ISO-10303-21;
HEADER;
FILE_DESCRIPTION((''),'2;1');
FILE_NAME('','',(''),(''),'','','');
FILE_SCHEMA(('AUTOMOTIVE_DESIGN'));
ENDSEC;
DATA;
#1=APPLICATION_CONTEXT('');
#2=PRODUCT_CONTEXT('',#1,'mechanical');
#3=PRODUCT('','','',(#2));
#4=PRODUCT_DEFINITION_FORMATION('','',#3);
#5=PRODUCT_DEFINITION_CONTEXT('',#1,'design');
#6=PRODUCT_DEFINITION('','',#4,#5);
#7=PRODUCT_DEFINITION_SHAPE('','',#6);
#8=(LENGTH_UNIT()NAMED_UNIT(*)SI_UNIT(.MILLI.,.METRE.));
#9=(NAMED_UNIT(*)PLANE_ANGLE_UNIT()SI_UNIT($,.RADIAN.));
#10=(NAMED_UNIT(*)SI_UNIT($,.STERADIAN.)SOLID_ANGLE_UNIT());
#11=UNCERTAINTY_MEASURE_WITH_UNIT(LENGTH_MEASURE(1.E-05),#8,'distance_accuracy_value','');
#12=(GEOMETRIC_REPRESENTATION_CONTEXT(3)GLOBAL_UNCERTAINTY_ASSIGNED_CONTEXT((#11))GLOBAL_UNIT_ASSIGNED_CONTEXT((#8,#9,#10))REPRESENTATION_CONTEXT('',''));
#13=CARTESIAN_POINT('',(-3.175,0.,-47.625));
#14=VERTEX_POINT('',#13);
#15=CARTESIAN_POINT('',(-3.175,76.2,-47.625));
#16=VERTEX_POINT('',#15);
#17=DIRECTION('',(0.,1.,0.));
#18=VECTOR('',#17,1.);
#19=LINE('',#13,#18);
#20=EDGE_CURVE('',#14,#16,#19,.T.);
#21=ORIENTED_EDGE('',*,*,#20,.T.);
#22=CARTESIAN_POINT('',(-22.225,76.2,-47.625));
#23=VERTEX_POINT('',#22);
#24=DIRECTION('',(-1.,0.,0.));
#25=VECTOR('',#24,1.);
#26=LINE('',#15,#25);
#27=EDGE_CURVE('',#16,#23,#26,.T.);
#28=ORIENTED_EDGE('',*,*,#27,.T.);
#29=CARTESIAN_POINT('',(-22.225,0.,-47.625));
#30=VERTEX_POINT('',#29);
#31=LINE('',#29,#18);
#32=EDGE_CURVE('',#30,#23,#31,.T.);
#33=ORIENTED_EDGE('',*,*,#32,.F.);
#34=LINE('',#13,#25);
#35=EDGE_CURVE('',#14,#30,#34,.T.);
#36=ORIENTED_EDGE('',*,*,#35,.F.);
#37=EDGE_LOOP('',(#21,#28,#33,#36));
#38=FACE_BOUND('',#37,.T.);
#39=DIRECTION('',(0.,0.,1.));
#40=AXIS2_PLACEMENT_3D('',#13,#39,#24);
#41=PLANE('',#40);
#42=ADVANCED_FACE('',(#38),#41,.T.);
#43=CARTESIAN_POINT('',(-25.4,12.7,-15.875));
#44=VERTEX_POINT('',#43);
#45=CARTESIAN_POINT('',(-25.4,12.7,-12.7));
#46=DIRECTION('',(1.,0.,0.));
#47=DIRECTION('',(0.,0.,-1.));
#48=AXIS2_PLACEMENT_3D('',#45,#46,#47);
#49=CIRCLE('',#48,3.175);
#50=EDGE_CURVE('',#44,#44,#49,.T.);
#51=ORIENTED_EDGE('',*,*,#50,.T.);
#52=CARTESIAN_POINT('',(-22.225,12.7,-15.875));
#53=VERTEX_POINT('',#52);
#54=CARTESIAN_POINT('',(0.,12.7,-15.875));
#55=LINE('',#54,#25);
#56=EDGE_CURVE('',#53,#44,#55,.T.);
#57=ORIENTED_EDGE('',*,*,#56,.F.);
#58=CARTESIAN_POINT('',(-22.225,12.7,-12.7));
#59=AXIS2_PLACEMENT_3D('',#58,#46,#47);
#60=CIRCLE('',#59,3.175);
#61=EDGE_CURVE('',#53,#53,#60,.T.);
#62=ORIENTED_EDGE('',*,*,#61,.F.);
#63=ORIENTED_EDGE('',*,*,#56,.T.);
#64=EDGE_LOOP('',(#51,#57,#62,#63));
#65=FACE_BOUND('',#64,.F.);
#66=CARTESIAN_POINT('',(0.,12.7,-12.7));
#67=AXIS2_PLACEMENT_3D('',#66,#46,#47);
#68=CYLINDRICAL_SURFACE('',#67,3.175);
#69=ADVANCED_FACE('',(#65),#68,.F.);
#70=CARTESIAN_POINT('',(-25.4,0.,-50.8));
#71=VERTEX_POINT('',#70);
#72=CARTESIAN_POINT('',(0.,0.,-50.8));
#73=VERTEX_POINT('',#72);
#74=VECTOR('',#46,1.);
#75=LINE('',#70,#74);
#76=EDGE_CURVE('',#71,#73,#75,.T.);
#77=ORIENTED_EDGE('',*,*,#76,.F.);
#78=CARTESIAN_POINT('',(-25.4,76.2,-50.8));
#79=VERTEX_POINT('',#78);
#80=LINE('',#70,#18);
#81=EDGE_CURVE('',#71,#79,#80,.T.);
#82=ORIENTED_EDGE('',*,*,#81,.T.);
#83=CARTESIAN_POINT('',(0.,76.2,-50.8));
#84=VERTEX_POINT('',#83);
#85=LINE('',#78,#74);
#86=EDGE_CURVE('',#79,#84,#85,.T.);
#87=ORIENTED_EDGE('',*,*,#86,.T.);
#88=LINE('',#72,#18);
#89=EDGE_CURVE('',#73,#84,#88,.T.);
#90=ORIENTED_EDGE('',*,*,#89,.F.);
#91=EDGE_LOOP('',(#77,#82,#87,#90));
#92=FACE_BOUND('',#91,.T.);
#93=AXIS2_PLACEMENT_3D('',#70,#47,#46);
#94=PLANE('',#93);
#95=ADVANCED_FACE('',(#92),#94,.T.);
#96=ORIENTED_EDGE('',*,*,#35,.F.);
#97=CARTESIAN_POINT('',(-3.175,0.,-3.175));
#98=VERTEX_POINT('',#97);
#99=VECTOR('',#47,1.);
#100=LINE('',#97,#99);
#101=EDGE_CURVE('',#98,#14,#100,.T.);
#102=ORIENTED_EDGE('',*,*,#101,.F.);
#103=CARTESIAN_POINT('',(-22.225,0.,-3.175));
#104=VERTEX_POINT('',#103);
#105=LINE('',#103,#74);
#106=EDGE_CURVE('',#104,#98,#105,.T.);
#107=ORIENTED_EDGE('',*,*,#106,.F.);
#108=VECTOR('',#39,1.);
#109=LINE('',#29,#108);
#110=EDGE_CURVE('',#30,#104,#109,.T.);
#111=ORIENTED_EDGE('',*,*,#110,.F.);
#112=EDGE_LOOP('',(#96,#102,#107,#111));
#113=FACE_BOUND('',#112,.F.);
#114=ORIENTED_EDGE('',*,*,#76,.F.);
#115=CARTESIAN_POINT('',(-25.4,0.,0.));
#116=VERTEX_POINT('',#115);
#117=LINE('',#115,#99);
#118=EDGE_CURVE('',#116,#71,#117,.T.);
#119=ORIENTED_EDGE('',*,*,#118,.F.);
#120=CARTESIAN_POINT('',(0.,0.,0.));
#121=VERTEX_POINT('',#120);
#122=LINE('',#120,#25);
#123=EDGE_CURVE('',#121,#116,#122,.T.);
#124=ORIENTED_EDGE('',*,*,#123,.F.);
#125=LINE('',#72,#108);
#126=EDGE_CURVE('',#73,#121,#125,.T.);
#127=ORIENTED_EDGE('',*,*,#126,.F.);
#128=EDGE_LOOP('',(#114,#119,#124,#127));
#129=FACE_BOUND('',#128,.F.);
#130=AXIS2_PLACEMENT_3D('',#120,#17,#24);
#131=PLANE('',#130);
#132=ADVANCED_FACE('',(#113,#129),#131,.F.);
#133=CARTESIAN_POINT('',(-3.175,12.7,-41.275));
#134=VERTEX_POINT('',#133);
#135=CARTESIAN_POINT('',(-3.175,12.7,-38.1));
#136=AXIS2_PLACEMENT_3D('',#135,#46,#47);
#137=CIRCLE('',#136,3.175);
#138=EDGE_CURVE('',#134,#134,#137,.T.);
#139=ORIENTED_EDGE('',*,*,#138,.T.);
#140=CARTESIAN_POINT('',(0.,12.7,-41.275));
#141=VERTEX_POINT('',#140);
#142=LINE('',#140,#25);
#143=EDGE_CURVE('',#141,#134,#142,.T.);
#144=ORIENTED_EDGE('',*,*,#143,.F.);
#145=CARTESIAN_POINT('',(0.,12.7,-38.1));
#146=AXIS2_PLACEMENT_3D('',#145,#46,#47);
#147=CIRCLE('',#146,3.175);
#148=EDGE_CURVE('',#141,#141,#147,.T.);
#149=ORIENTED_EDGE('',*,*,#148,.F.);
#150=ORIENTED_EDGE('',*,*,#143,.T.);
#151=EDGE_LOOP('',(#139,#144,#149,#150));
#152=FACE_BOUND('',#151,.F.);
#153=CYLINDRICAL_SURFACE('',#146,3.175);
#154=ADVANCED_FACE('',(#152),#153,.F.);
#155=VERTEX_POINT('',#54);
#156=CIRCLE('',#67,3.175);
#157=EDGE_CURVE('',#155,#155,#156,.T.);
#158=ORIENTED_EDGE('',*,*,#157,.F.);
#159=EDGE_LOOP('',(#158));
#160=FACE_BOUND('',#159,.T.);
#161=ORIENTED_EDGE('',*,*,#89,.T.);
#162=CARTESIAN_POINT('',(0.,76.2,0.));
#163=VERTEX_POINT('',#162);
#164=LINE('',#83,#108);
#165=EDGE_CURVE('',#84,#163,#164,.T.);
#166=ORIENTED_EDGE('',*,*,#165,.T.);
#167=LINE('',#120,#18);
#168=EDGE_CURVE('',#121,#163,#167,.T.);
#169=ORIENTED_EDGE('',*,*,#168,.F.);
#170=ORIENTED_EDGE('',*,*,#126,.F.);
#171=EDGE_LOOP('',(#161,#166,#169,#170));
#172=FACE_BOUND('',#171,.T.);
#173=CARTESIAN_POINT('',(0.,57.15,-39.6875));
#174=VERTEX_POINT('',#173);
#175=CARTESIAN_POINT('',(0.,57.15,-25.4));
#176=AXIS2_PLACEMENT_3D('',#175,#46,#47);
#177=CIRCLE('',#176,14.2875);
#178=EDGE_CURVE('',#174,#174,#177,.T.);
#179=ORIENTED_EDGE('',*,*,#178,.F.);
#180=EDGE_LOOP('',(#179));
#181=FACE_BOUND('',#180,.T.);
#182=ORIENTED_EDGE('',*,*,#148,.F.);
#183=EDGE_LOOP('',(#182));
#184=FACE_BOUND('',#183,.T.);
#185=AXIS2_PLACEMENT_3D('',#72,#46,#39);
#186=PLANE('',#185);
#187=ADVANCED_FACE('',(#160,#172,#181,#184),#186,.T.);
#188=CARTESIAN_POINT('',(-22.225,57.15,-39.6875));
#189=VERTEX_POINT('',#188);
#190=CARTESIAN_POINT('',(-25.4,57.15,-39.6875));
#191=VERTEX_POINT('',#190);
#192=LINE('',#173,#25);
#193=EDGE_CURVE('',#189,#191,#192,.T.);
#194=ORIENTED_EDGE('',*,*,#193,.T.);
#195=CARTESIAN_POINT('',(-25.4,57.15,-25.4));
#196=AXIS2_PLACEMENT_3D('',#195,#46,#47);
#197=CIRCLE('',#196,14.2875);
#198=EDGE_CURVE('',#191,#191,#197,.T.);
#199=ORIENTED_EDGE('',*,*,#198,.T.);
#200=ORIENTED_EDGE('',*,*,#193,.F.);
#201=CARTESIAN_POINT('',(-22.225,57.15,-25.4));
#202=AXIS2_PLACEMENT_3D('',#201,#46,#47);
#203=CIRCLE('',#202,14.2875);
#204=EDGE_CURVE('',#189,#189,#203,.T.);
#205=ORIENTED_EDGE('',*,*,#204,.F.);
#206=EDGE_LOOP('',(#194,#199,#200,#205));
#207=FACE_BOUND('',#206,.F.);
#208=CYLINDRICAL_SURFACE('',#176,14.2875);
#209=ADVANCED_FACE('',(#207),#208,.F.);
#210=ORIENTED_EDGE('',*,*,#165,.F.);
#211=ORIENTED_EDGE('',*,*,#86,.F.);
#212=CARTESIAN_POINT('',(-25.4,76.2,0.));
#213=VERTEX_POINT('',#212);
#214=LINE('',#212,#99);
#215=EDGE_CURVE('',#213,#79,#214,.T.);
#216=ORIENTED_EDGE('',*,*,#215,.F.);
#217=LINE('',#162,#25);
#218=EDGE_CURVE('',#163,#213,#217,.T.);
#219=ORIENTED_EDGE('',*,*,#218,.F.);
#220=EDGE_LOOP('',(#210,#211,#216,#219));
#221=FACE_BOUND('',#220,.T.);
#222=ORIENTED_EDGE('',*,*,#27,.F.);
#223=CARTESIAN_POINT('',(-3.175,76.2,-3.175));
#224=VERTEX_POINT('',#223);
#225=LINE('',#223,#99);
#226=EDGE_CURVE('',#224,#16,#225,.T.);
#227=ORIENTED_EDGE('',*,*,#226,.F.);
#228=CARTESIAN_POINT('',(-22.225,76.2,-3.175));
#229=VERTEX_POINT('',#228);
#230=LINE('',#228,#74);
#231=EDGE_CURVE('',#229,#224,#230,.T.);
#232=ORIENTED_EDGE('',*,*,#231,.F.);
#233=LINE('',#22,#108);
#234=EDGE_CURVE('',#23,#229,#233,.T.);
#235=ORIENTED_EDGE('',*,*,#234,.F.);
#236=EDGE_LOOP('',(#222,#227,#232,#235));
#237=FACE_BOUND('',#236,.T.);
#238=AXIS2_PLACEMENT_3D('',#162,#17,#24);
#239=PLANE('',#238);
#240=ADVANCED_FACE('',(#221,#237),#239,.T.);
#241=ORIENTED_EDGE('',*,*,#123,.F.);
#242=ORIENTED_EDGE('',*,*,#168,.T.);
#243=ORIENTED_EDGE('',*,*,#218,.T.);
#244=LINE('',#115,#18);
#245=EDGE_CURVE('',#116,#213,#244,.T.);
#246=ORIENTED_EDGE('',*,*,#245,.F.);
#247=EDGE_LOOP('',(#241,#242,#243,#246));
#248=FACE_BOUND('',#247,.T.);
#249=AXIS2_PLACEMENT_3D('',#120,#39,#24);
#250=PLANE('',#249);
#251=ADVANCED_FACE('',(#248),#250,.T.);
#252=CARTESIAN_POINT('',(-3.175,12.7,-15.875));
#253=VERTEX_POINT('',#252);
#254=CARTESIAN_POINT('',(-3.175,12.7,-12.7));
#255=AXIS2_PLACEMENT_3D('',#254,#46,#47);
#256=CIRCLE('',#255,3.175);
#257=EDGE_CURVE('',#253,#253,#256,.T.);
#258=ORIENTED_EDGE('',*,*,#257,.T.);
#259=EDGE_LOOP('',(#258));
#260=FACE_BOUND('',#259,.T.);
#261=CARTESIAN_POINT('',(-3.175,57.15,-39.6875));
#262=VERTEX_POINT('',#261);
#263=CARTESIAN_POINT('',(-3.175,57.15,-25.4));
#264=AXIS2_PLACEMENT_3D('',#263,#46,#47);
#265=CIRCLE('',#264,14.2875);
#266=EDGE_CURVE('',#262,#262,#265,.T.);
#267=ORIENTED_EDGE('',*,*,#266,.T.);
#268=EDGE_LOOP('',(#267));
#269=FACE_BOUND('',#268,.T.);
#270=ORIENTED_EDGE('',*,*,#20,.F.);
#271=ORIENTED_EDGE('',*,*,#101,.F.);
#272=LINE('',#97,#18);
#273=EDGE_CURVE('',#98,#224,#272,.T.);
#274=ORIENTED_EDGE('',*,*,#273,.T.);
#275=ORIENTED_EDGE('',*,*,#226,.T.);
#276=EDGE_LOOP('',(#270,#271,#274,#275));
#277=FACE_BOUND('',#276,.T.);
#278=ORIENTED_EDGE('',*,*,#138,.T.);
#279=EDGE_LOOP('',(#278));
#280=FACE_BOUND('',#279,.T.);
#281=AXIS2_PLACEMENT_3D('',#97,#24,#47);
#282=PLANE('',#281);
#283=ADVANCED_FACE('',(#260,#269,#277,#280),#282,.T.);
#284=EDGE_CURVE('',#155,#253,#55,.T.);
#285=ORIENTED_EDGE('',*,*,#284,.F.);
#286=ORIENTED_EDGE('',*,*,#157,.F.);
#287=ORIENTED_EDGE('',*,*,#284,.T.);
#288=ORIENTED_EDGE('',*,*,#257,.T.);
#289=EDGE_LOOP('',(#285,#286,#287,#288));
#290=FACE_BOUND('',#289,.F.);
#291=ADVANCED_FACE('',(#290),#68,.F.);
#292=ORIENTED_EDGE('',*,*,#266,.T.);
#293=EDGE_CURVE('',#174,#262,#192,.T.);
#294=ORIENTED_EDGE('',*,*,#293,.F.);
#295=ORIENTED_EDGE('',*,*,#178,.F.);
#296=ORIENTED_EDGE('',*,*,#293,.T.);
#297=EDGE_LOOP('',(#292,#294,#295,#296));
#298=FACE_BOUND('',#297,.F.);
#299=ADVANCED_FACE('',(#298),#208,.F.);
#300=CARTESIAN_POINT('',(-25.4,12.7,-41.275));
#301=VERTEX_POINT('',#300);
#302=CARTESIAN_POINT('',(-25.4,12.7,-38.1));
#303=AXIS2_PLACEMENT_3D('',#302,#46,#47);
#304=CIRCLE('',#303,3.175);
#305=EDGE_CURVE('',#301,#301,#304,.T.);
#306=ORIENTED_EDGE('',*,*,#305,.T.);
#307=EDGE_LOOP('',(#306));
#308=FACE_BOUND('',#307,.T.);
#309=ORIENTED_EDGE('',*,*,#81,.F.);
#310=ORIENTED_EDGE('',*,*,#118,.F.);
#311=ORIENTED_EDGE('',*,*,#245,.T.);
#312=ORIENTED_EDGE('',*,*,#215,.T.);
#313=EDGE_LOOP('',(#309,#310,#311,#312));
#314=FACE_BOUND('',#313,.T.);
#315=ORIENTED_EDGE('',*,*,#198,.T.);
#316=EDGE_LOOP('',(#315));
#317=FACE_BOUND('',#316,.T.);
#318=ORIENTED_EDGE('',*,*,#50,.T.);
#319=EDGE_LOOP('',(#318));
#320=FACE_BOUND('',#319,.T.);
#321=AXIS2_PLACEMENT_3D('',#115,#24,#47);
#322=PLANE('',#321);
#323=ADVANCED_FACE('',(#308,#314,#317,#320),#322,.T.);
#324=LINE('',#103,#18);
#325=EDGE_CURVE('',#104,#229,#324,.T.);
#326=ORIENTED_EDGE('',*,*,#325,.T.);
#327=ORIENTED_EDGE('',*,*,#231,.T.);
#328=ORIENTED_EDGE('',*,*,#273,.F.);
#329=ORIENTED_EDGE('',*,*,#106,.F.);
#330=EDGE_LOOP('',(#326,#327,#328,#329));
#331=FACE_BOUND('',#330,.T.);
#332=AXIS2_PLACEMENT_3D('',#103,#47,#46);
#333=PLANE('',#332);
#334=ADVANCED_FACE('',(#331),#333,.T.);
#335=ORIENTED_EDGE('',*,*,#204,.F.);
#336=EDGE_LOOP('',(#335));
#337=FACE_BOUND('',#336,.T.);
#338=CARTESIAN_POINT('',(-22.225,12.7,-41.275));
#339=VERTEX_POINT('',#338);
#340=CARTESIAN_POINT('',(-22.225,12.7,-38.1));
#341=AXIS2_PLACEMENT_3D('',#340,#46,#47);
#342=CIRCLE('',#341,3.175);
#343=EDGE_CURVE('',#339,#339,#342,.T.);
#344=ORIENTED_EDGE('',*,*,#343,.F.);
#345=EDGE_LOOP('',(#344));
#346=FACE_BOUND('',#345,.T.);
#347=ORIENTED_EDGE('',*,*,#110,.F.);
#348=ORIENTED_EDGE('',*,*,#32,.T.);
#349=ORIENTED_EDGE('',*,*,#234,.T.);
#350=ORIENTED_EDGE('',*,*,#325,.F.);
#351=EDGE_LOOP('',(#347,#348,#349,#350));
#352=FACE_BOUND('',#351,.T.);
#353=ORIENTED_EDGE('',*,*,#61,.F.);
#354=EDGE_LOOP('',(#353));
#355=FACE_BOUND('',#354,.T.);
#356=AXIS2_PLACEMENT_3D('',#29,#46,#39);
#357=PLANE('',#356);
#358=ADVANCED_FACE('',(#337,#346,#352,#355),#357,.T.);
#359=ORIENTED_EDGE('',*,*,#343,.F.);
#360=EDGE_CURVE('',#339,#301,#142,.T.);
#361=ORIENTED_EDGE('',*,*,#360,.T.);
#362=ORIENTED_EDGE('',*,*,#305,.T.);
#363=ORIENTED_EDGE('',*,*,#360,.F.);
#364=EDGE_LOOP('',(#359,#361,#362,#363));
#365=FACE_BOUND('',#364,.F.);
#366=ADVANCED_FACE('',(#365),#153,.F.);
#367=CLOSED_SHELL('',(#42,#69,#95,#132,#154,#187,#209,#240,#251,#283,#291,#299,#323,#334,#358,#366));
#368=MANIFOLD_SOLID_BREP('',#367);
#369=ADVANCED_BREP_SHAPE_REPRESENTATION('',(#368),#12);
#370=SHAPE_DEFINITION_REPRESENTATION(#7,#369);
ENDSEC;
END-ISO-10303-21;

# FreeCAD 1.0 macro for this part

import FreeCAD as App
import Part
import Sketcher
Q = App.Units.Quantity

doc = App.newDocument("Part")
body = doc.addObject("PartDesign::Body", "Body")

sketch1 = doc.addObject("Sketcher::SketchObject", "Sketch")
body.addObject(sketch1)
sketch1.AttachmentSupport = (doc.XZ_Plane, [""])
sketch1.MapMode = "FlatFace"
sketch1.addGeometry([
    Part.LineSegment(App.Vector(-25.4, 0, 0), App.Vector(0, 0, 0)),
    Part.LineSegment(App.Vector(0, 0, 0), App.Vector(0, -50.8, 0)),
    Part.LineSegment(App.Vector(0, -50.8, 0), App.Vector(-25.4, -50.8, 0)),
    Part.LineSegment(App.Vector(-25.4, -50.8, 0), App.Vector(-25.4, 0, 0)),
    Part.LineSegment(App.Vector(-3.175, -3.175, 0), App.Vector(-22.225, -3.175, 0)),
    Part.LineSegment(App.Vector(-22.225, -3.175, 0), App.Vector(-22.225, -47.625, 0)),
    Part.LineSegment(App.Vector(-22.225, -47.625, 0), App.Vector(-3.175, -47.625, 0)),
    Part.LineSegment(App.Vector(-3.175, -47.625, 0), App.Vector(-3.175, -3.175, 0)),
], False)
sketch1.addConstraint([
    Sketcher.Constraint("Coincident", 0, 2, 1, 1),
    Sketcher.Constraint("Coincident", 1, 2, 2, 1),
    Sketcher.Constraint("Coincident", 2, 2, 3, 1),
    Sketcher.Constraint("Coincident", 3, 2, 0, 1),
    Sketcher.Constraint("Coincident", 4, 2, 5, 1),
    Sketcher.Constraint("Coincident", 5, 2, 6, 1),
    Sketcher.Constraint("Coincident", 6, 2, 7, 1),
    Sketcher.Constraint("Coincident", 7, 2, 4, 1),
    Sketcher.Constraint("Horizontal", 0),
    Sketcher.Constraint("Vertical", 1),
    Sketcher.Constraint("Horizontal", 2),
    Sketcher.Constraint("Vertical", 3),
    Sketcher.Constraint("Horizontal", 4),
    Sketcher.Constraint("Vertical", 5),
    Sketcher.Constraint("Horizontal", 6),
    Sketcher.Constraint("Vertical", 7),
    Sketcher.Constraint("Coincident", 0, 2, -1, 1),
    Sketcher.Constraint("DistanceX", 0, 1, 0, 2, Q("1 in")),
    Sketcher.Constraint("DistanceY", 1, 2, 1, 1, Q("2 in")),
    Sketcher.Constraint("DistanceY", 4, 2, -1, 1, Q("0.125 in")),
    Sketcher.Constraint("DistanceX", 6, 2, -1, 1, Q("0.125 in")),
    Sketcher.Constraint("DistanceX", 3, 2, 4, 2, Q("0.125 in")),
    Sketcher.Constraint("DistanceY", 2, 2, 5, 2, Q("0.125 in")),
])
pad1 = doc.addObject("PartDesign::Pad", "Pad")
body.addObject(pad1)
pad1.Profile = sketch1
pad1.Length = Q("3 in")
pad1.Reversed = True

sketch2 = doc.addObject("Sketcher::SketchObject", "Sketch001")
body.addObject(sketch2)
sketch2.AttachmentSupport = (doc.YZ_Plane, [""])
sketch2.MapMode = "FlatFace"
sketch2.addGeometry([
    Part.Circle(App.Vector(12.7, -12.7, 0), App.Vector(0, 0, 1), 3.175),
    Part.Circle(App.Vector(12.7, -38.1, 0), App.Vector(0, 0, 1), 3.175),
    Part.Circle(App.Vector(57.15, -25.4, 0), App.Vector(0, 0, 1), 14.2875),
], False)
sketch2.addConstraint([
    Sketcher.Constraint("Equal", 0, 1),
    Sketcher.Constraint("Vertical", 0, 3, 1, 3),
    Sketcher.Constraint("Diameter", 0, Q("0.25 in")),
    Sketcher.Constraint("Diameter", 2, Q("1.125 in")),
    Sketcher.Constraint("DistanceY", 2, 3, -1, 1, Q("1 in")),
    Sketcher.Constraint("DistanceY", 1, 3, 0, 3, Q("1 in")),
    Sketcher.Constraint("DistanceX", -1, 1, 0, 3, Q("0.5 in")),
    Sketcher.Constraint("DistanceY", 0, 3, -1, 1, Q("0.5 in")),
    Sketcher.Constraint("DistanceX", -1, 1, 2, 3, Q("2.25 in")),
])
pocket1 = doc.addObject("PartDesign::Pocket", "Pocket")
body.addObject(pocket1)
pocket1.Profile = sketch2
pocket1.Length = Q("3 in")

doc.recompute()
